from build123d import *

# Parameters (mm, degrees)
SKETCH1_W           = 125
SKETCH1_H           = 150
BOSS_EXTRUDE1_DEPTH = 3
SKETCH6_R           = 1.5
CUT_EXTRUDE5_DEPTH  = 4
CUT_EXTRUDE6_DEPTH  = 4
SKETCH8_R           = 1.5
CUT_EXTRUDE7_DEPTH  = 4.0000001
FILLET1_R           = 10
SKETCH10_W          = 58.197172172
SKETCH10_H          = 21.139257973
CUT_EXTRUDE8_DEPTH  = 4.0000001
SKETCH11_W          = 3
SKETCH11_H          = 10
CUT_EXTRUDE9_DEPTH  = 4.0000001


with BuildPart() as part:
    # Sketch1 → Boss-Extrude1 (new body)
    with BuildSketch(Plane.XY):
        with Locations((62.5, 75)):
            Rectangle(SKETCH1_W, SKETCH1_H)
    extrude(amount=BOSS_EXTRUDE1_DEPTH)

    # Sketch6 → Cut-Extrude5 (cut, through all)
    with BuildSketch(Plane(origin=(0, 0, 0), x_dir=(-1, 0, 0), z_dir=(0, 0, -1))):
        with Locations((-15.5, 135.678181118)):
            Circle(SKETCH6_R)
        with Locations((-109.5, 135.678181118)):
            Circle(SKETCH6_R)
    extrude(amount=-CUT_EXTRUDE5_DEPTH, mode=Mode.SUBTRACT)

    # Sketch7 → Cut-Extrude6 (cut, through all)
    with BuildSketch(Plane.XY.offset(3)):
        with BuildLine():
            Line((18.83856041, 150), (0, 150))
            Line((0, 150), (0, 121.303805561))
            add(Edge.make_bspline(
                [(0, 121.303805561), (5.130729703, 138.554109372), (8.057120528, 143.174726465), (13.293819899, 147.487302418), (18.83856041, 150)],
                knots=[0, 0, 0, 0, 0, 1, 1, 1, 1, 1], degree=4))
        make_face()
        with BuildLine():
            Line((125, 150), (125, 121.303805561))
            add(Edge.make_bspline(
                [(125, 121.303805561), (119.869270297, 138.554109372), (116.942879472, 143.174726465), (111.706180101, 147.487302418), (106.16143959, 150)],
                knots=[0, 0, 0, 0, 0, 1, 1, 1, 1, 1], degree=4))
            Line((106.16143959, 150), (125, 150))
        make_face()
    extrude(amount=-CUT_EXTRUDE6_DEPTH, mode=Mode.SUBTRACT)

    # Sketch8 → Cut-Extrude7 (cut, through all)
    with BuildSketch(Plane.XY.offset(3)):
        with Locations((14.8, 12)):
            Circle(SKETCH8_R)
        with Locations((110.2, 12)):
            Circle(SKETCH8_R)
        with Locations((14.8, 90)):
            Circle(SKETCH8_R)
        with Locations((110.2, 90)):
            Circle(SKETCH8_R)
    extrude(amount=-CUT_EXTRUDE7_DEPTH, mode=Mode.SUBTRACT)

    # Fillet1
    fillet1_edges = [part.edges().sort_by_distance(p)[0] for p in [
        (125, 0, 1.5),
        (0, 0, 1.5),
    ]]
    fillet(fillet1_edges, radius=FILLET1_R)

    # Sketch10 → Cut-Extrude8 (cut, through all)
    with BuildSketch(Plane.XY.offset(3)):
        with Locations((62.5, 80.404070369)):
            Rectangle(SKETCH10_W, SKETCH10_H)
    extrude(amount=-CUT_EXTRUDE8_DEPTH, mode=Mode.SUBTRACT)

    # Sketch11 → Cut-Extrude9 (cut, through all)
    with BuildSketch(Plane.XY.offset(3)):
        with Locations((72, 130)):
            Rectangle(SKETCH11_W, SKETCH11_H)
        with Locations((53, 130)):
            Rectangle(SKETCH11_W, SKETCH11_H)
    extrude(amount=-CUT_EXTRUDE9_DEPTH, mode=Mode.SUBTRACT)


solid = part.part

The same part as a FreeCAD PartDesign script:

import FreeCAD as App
import Part
import Sketcher


def edges_at(feature, points):
    """Names of the edges that pass closest to the given points."""
    edges = feature.Shape.Edges
    near = lambda p: min(range(len(edges)), key=lambda i: edges[i].distToShape(Part.Vertex(*p))[0])
    return sorted({f"Edge{near(p) + 1}" for p in points})


def add_polygon(sketch, points):
    """Adds a closed chain of lines whose ends are joined by coincident constraints."""
    first, n = sketch.GeometryCount, len(points)
    for a, b in zip(points, points[1:] + points[:1]):
        sketch.addGeometry(Part.LineSegment(App.Vector(*a, 0), App.Vector(*b, 0)), False)
    for i in range(n):
        sketch.addConstraint(Sketcher.Constraint("Coincident", first + i, 2, first + (i + 1) % n, 1))

doc = App.newDocument("Part")
params = doc.addObject("Spreadsheet::Sheet", "Params")
for row, (alias, value) in enumerate([
    ("sketch1_width", "125 mm"),
    ("sketch1_height", "150 mm"),
    ("pad1_length", "3 mm"),
    ("sketch2_diameter", "3 mm"),
    ("sketch4_diameter", "3 mm"),
    ("fillet_radius", "10 mm"),
    ("sketch6_width", "3 mm"),
    ("sketch6_height", "10 mm"),
], start=1):
    params.set(f"A{row}", alias)
    params.set(f"B{row}", "=" + value)
    params.setAlias(f"B{row}", alias)

body = doc.addObject("PartDesign::Body", "Body")

# Sketch on XY plane
sketch1 = doc.addObject("Sketcher::SketchObject", "Sketch")
body.addObject(sketch1)
sketch1.AttachmentSupport = (doc.XY_Plane, [""])
sketch1.MapMode = "FlatFace"
add_polygon(sketch1, [(0, 150), (0, 0), (125, 0), (125, 150)])  # lines 0-3
sketch1.addConstraint(Sketcher.Constraint("Vertical", 0))
sketch1.addConstraint(Sketcher.Constraint("Horizontal", 1))
sketch1.addConstraint(Sketcher.Constraint("Vertical", 2))
sketch1.addConstraint(Sketcher.Constraint("Horizontal", 3))
sketch1.addConstraint(Sketcher.Constraint("Coincident", 0, 2, -1, 1))
sketch1.addConstraint(Sketcher.Constraint("DistanceX", 1, 1, 1, 2, 125.0))
sketch1.addConstraint(Sketcher.Constraint("DistanceY", 0, 2, 0, 1, 150.0))
sketch1.setExpression("Constraints[9]", "Params.sketch1_width")
sketch1.setExpression("Constraints[10]", "Params.sketch1_height")
pad1 = doc.addObject("PartDesign::Pad", "Pad")
body.addObject(pad1)
pad1.Profile = sketch1
pad1.setExpression("Length", "Params.pad1_length")

# Sketch on XY plane
sketch2 = doc.addObject("Sketcher::SketchObject", "Sketch001")
body.addObject(sketch2)
sketch2.AttachmentSupport = (doc.XY_Plane, [""])
sketch2.MapMode = "FlatFace"
sketch2.addGeometry(Part.Circle(App.Vector(15.5, 135.7, 0), App.Vector(0, 0, 1), 1.5), False)
sketch2.addGeometry(Part.Circle(App.Vector(109.5, 135.7, 0), App.Vector(0, 0, 1), 1.5), False)
sketch2.addConstraint(Sketcher.Constraint("Equal", 0, 1))
sketch2.addConstraint(Sketcher.Constraint("Horizontal", 0, 3, 1, 3))
sketch2.addConstraint(Sketcher.Constraint("Diameter", 0, 3.0))
sketch2.addConstraint(Sketcher.Constraint("DistanceX", 0, 3, 1, 3, 94.0))
sketch2.addConstraint(Sketcher.Constraint("DistanceX", -1, 1, 0, 3, 15.5))
sketch2.addConstraint(Sketcher.Constraint("DistanceY", -1, 1, 0, 3, 135.678181))
sketch2.setExpression("Constraints[2]", "Params.sketch2_diameter")
pocket1 = doc.addObject("PartDesign::Pocket", "Pocket")
body.addObject(pocket1)
pocket1.Profile = sketch2
pocket1.Type = "ThroughAll"
pocket1.Reversed = True

# Sketch on XY plane
sketch3 = doc.addObject("Sketcher::SketchObject", "Sketch002")
body.addObject(sketch3)
sketch3.AttachmentSupport = (doc.XY_Plane, [""])
sketch3.MapMode = "FlatFace"
sketch3.AttachmentOffset = App.Placement(App.Vector(0, 0, 3), App.Rotation())
sketch3.addGeometry(Part.LineSegment(App.Vector(18.83856, 150, 0), App.Vector(0, 150, 0)), False)
sketch3.addGeometry(Part.LineSegment(App.Vector(0, 150, 0), App.Vector(0, 121.303806, 0)), False)
sketch3.addGeometry(Part.BSplineCurve([App.Vector(0, 121.303806, 0), App.Vector(5.13073, 138.554109, 0), App.Vector(8.057121, 143.174726, 0), App.Vector(13.29382, 147.487302, 0), App.Vector(18.83856, 150, 0)], [5, 5], [0, 1], False, 4, [1, 1, 1, 1, 1], False), False)
sketch3.addGeometry(Part.LineSegment(App.Vector(125, 121.303806, 0), App.Vector(125, 150, 0)), False)
sketch3.addGeometry(Part.LineSegment(App.Vector(125, 150, 0), App.Vector(106.16144, 150, 0)), False)
sketch3.addGeometry(Part.BSplineCurve([App.Vector(125, 121.303806, 0), App.Vector(119.86927, 138.554109, 0), App.Vector(116.942879, 143.174726, 0), App.Vector(111.70618, 147.487302, 0), App.Vector(106.16144, 150, 0)], [5, 5], [0, 1], False, 4, [1, 1, 1, 1, 1], False), False)
sketch3.addConstraint(Sketcher.Constraint("Block", 2))
sketch3.addConstraint(Sketcher.Constraint("Block", 5))
sketch3.addConstraint(Sketcher.Constraint("Coincident", 0, 2, 1, 1))
sketch3.addConstraint(Sketcher.Constraint("Coincident", 1, 2, 2, 1))
sketch3.addConstraint(Sketcher.Constraint("Coincident", 2, 2, 0, 1))
sketch3.addConstraint(Sketcher.Constraint("Coincident", 3, 2, 4, 1))
sketch3.addConstraint(Sketcher.Constraint("Coincident", 4, 2, 5, 2))
sketch3.addConstraint(Sketcher.Constraint("Coincident", 5, 1, 3, 1))
sketch3.addConstraint(Sketcher.Constraint("Horizontal", 0))
sketch3.addConstraint(Sketcher.Constraint("Vertical", 1))
sketch3.addConstraint(Sketcher.Constraint("Vertical", 3))
sketch3.addConstraint(Sketcher.Constraint("Horizontal", 4))
pocket2 = doc.addObject("PartDesign::Pocket", "Pocket001")
body.addObject(pocket2)
pocket2.Profile = sketch3
pocket2.Type = "ThroughAll"

# Sketch on XY plane
sketch4 = doc.addObject("Sketcher::SketchObject", "Sketch003")
body.addObject(sketch4)
sketch4.AttachmentSupport = (doc.XY_Plane, [""])
sketch4.MapMode = "FlatFace"
sketch4.AttachmentOffset = App.Placement(App.Vector(0, 0, 3), App.Rotation())
sketch4.addGeometry(Part.Circle(App.Vector(14.8, 12, 0), App.Vector(0, 0, 1), 1.5), False)
sketch4.addGeometry(Part.Circle(App.Vector(110.2, 12, 0), App.Vector(0, 0, 1), 1.5), False)
sketch4.addGeometry(Part.Circle(App.Vector(14.8, 90, 0), App.Vector(0, 0, 1), 1.5), False)
sketch4.addGeometry(Part.Circle(App.Vector(110.2, 90, 0), App.Vector(0, 0, 1), 1.5), False)
sketch4.addConstraint(Sketcher.Constraint("Equal", 0, 1))
sketch4.addConstraint(Sketcher.Constraint("Equal", 1, 2))
sketch4.addConstraint(Sketcher.Constraint("Equal", 2, 3))
sketch4.addConstraint(Sketcher.Constraint("Horizontal", 0, 3, 1, 3))
sketch4.addConstraint(Sketcher.Constraint("Horizontal", 2, 3, 3, 3))
sketch4.addConstraint(Sketcher.Constraint("Vertical", 0, 3, 2, 3))
sketch4.addConstraint(Sketcher.Constraint("Vertical", 1, 3, 3, 3))
sketch4.addConstraint(Sketcher.Constraint("Diameter", 0, 3.0))
sketch4.addConstraint(Sketcher.Constraint("DistanceY", -1, 1, 0, 3, 12.0))
sketch4.addConstraint(Sketcher.Constraint("DistanceY", -1, 1, 2, 3, 90.0))
sketch4.addConstraint(Sketcher.Constraint("DistanceX", -1, 1, 0, 3, 14.8))
sketch4.addConstraint(Sketcher.Constraint("DistanceX", -1, 1, 1, 3, 110.2))
sketch4.setExpression("Constraints[7]", "Params.sketch4_diameter")
pocket3 = doc.addObject("PartDesign::Pocket", "Pocket002")
body.addObject(pocket3)
pocket3.Profile = sketch4
pocket3.Type = "ThroughAll"
doc.recompute()

fillet = doc.addObject("PartDesign::Fillet", "Fillet")
body.addObject(fillet)
fillet.Base = (pocket3, edges_at(pocket3, [(125, 0, 1.5), (0, 0, 1.5)]))
fillet.setExpression("Radius", "Params.fillet_radius")

# Sketch on XY plane
sketch5 = doc.addObject("Sketcher::SketchObject", "Sketch004")
body.addObject(sketch5)
sketch5.AttachmentSupport = (doc.XY_Plane, [""])
sketch5.MapMode = "FlatFace"
sketch5.AttachmentOffset = App.Placement(App.Vector(0, 0, 3), App.Rotation())
add_polygon(sketch5, [(33, 91), (33, 70), (92, 70), (92, 91)])  # lines 0-3
sketch5.addConstraint(Sketcher.Constraint("Vertical", 0))
sketch5.addConstraint(Sketcher.Constraint("Horizontal", 1))
sketch5.addConstraint(Sketcher.Constraint("Vertical", 2))
sketch5.addConstraint(Sketcher.Constraint("Horizontal", 3))
sketch5.addConstraint(Sketcher.Constraint("DistanceY", -1, 1, 2, 2, 90.973699))
sketch5.addConstraint(Sketcher.Constraint("DistanceX", 1, 1, 1, 2, 58.197172))
sketch5.addConstraint(Sketcher.Constraint("DistanceY", 0, 2, 0, 1, 21.139258))
sketch5.addConstraint(Sketcher.Constraint("DistanceX", -1, 1, 0, 2, 33.401414))
pocket4 = doc.addObject("PartDesign::Pocket", "Pocket003")
body.addObject(pocket4)
pocket4.Profile = sketch5
pocket4.Type = "ThroughAll"

# Sketch on XY plane
sketch6 = doc.addObject("Sketcher::SketchObject", "Sketch005")
body.addObject(sketch6)
sketch6.AttachmentSupport = (doc.XY_Plane, [""])
sketch6.MapMode = "FlatFace"
sketch6.AttachmentOffset = App.Placement(App.Vector(0, 0, 3), App.Rotation())
add_polygon(sketch6, [(70.5, 135), (70.5, 125), (73.5, 125), (73.5, 135)])  # lines 0-3
add_polygon(sketch6, [(51.5, 135), (51.5, 125), (54.5, 125), (54.5, 135)])  # lines 4-7
sketch6.addConstraint(Sketcher.Constraint("Vertical", 0))
sketch6.addConstraint(Sketcher.Constraint("Horizontal", 1))
sketch6.addConstraint(Sketcher.Constraint("Vertical", 2))
sketch6.addConstraint(Sketcher.Constraint("Horizontal", 3))
sketch6.addConstraint(Sketcher.Constraint("Vertical", 4))
sketch6.addConstraint(Sketcher.Constraint("Horizontal", 5))
sketch6.addConstraint(Sketcher.Constraint("Vertical", 6))
sketch6.addConstraint(Sketcher.Constraint("Horizontal", 7))
sketch6.addConstraint(Sketcher.Constraint("Horizontal", 1, 2, 4, 2))
sketch6.addConstraint(Sketcher.Constraint("Horizontal", 3, 2, 6, 2))
sketch6.addConstraint(Sketcher.Constraint("Equal", 3, 5))
sketch6.addConstraint(Sketcher.Constraint("DistanceX", 1, 1, 1, 2, 3.0))
sketch6.addConstraint(Sketcher.Constraint("DistanceY", 0, 2, 0, 1, 10.0))
sketch6.addConstraint(Sketcher.Constraint("DistanceY", -1, 1, 0, 2, 125.0))
sketch6.addConstraint(Sketcher.Constraint("DistanceX", 4, 2, 0, 2, 19.0))
sketch6.addConstraint(Sketcher.Constraint("DistanceX", -1, 1, 0, 2, 70.5))
sketch6.setExpression("Constraints[19]", "Params.sketch6_width")
sketch6.setExpression("Constraints[20]", "Params.sketch6_height")
pocket5 = doc.addObject("PartDesign::Pocket", "Pocket004")
body.addObject(pocket5)
pocket5.Profile = sketch6
pocket5.Type = "ThroughAll"

doc.recompute()
